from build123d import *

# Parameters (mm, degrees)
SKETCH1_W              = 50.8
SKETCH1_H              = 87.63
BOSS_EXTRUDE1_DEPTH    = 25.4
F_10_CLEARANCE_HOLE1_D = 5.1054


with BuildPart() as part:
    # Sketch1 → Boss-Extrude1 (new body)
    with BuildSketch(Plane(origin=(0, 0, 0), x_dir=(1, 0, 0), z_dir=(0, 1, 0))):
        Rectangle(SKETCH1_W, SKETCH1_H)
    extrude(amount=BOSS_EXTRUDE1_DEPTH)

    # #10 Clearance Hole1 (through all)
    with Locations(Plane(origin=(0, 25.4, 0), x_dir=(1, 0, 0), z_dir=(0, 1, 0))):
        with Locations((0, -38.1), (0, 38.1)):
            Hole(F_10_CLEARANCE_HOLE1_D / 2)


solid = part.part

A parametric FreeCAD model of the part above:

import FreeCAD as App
import Part
import Sketcher

V = App.Vector
Q = App.Units.Quantity


def add_polygon(sketch, points):
    """Adds a closed chain of lines whose ends are joined by coincident constraints."""
    first, n = sketch.GeometryCount, len(points)
    for a, b in zip(points, points[1:] + points[:1]):
        sketch.addGeometry(Part.LineSegment(App.Vector(*a, 0), App.Vector(*b, 0)), False)
    for i in range(n):
        sketch.addConstraint(Sketcher.Constraint("Coincident", first + i, 2, first + (i + 1) % n, 1))

doc = App.newDocument("Part")
body = doc.addObject("PartDesign::Body", "Body")

# Sketch on XZ plane
sketch1 = body.newObject("Sketcher::SketchObject", "Sketch")
sketch1.AttachmentSupport = (doc.getObject("XZ_Plane"), [""])
sketch1.MapMode = "FlatFace"
add_polygon(sketch1, [(-25, -44), (-25, 44), (25, 44), (25, -44)])  # lines 0-3
sketch1.addConstraint([
    Sketcher.Constraint("Vertical", 0),
    Sketcher.Constraint("Horizontal", 1),
    Sketcher.Constraint("Vertical", 2),
    Sketcher.Constraint("Horizontal", 3),
    Sketcher.Constraint("Symmetric", 0, 2, 2, 2, -1, 1),
    Sketcher.Constraint("DistanceX", 1, 1, 1, 2, Q("2 in")),
    Sketcher.Constraint("DistanceY", 0, 1, 0, 2, Q("3.45 in")),
])
pad1 = body.newObject("PartDesign::Pad", "Pad")
pad1.Profile = sketch1
pad1.Length = Q("1 in")
pad1.Reversed = True

# Sketch on XZ plane
sketch2 = body.newObject("Sketcher::SketchObject", "Sketch001")
sketch2.AttachmentSupport = (doc.getObject("XZ_Plane"), [""])
sketch2.MapMode = "FlatFace"
sketch2.AttachmentOffset = App.Placement(V(0, 0, -1 * 25.4), App.Rotation())
sketch2.addGeometry([
    Part.Circle(V(0, 38.1, 0), V(0, 0, 1), 2.6),
    Part.Circle(V(0, -38.1, 0), V(0, 0, 1), 2.6),
], False)
sketch2.addConstraint([
    Sketcher.Constraint("Equal", 0, 1),
    Sketcher.Constraint("Symmetric", 0, 3, 1, 3, -1, 1),
    Sketcher.Constraint("PointOnObject", 0, 3, -2),
    Sketcher.Constraint("Diameter", 0, Q("0.201 in")),
    Sketcher.Constraint("DistanceY", 1, 3, 0, 3, Q("3 in")),
])
doc.recompute()
hole = body.newObject("PartDesign::Hole", "Hole")
hole.Profile = sketch2
hole.ThreadType = "None"
hole.Diameter = Q("0.201 in")
hole.DepthType = "ThroughAll"
hole.Reversed = True

doc.recompute()
